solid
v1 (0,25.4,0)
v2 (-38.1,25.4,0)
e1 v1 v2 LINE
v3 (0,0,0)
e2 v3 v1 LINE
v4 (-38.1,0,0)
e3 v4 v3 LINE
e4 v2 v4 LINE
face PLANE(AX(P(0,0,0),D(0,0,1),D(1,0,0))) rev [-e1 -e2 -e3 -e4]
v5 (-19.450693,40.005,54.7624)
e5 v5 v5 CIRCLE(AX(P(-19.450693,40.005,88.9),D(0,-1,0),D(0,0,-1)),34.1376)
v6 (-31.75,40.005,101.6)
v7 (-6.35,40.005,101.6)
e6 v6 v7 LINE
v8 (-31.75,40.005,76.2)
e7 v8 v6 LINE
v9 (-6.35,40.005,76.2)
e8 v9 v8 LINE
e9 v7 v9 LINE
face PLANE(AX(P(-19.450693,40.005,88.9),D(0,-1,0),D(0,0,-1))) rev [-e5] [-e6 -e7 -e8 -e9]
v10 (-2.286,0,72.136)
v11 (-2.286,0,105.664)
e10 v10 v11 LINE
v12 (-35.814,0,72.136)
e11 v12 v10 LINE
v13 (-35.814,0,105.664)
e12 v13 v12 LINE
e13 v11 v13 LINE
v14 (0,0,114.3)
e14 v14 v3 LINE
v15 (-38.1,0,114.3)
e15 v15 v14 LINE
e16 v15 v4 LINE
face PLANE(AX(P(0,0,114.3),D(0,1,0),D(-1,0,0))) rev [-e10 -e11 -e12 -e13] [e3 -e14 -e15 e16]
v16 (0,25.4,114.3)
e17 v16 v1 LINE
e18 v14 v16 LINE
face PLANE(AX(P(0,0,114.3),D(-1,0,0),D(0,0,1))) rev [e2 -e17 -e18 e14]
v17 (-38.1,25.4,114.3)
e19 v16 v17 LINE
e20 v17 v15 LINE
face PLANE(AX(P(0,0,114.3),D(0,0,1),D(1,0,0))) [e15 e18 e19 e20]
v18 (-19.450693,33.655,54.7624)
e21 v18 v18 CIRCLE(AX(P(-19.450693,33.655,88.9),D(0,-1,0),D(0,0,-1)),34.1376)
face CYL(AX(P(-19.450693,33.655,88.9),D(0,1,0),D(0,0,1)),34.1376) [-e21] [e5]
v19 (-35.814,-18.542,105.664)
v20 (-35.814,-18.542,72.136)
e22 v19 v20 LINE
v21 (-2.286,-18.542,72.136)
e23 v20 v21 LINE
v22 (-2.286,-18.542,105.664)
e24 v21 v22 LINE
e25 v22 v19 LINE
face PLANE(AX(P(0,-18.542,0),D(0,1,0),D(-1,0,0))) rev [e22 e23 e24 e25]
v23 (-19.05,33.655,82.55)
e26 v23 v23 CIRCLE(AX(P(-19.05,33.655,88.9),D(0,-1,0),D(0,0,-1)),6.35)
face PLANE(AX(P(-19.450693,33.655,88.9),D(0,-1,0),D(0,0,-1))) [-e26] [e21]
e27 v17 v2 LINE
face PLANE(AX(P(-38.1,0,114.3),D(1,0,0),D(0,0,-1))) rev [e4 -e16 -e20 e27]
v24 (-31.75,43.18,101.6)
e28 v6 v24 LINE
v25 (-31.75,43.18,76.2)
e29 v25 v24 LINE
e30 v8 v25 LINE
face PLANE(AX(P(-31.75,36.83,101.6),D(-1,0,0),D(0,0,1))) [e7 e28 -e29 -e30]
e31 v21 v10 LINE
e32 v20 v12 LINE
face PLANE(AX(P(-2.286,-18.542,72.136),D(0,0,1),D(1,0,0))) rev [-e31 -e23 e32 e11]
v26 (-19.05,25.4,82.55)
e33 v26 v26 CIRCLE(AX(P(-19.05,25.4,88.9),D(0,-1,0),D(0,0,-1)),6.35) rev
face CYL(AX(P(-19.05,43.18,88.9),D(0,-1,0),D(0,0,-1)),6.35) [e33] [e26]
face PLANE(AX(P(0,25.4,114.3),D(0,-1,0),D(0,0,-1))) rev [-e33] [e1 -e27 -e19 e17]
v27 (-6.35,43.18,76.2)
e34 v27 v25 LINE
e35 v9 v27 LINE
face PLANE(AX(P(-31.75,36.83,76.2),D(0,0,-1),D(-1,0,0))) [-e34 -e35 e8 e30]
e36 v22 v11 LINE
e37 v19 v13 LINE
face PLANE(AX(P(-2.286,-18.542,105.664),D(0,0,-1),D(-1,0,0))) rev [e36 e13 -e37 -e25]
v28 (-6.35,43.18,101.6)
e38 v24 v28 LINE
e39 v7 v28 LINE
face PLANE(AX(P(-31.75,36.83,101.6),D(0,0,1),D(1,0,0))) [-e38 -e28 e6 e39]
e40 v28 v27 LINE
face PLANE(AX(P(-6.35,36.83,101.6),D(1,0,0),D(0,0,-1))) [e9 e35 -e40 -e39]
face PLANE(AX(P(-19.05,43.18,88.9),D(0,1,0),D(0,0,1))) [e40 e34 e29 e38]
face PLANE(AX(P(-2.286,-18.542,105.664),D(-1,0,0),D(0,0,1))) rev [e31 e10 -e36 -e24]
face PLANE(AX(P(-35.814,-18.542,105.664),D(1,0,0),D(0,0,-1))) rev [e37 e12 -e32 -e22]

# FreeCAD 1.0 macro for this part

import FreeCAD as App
import Part
import Sketcher
Q = App.Units.Quantity


def add_polygon(sketch, points):
    """Adds a closed chain of lines whose ends are joined by coincident constraints."""
    first, n = sketch.GeometryCount, len(points)
    for a, b in zip(points, points[1:] + points[:1]):
        sketch.addGeometry(Part.LineSegment(App.Vector(*a, 0), App.Vector(*b, 0)), False)
    for i in range(n):
        sketch.addConstraint(Sketcher.Constraint("Coincident", first + i, 2, first + (i + 1) % n, 1))

doc = App.newDocument("Part")
params = doc.addObject("Spreadsheet::Sheet", "Params")
for row, (alias, value) in enumerate([
    ("sketch1_height", "1 in"),
    ("sketch1_width", "1.5 in"),
    ("pad1_length", "4.5 in"),
    ("sketch2_width", "1.32 in"),
    ("pad2_length", "0.73 in"),
    ("sketch3_diameter", "0.5 in"),
    ("pad3_length", "0.7 in"),
    ("sketch4_width", "1 in"),
    ("pad4_length", "0.25 in"),
    ("sketch5_diameter", "2.688 in"),
    ("pad5_length", "0.25 in"),
], start=1):
    params.set(f"A{row}", alias)
    params.set(f"B{row}", "=" + value)
    params.setAlias(f"B{row}", alias)

body = doc.addObject("PartDesign::Body", "Body")

# Sketch on XY plane
sketch1 = body.newObject("Sketcher::SketchObject", "Sketch")
sketch1.AttachmentSupport = (doc.getObject("XY_Plane"), [""])
sketch1.MapMode = "FlatFace"
add_polygon(sketch1, [(-38, 25), (-38, 0), (0, 0), (0, 25)])  # lines 0-3
sketch1.addConstraint([
    Sketcher.Constraint("Vertical", 0),
    Sketcher.Constraint("Horizontal", 1),
    Sketcher.Constraint("Vertical", 2),
    Sketcher.Constraint("Horizontal", 3),
    Sketcher.Constraint("Coincident", 1, 2, -1, 1),
    Sketcher.Constraint("DistanceY", 0, 2, 0, 1, Q("1 in")),
    Sketcher.Constraint("DistanceX", 1, 1, 1, 2, Q("1.5 in")),
])
sketch1.setExpression("Constraints[9]", "Params.sketch1_height")
sketch1.setExpression("Constraints[10]", "Params.sketch1_width")
pad1 = body.newObject("PartDesign::Pad", "Pad")
pad1.Profile = sketch1
pad1.setExpression("Length", "Params.pad1_length")

# Sketch on XZ plane
sketch2 = body.newObject("Sketcher::SketchObject", "Sketch001")
sketch2.AttachmentSupport = (doc.getObject("XZ_Plane"), [""])
sketch2.MapMode = "FlatFace"
add_polygon(sketch2, [(-36, 106), (-36, 72), (-2, 72), (-2, 106)])  # lines 0-3
sketch2.addConstraint([
    Sketcher.Constraint("Vertical", 0),
    Sketcher.Constraint("Horizontal", 1),
    Sketcher.Constraint("Vertical", 2),
    Sketcher.Constraint("Horizontal", 3),
    Sketcher.Constraint("Equal", 3, 0),
    Sketcher.Constraint("DistanceX", 1, 1, 1, 2, Q("1.32 in")),
    Sketcher.Constraint("DistanceX", 0, 2, -1, 1, Q("1.41 in")),
    Sketcher.Constraint("DistanceY", -1, 1, 0, 2, Q("2.84 in")),
])
sketch2.setExpression("Constraints[9]", "Params.sketch2_width")
pad2 = body.newObject("PartDesign::Pad", "Pad001")
pad2.Profile = sketch2
pad2.setExpression("Length", "Params.pad2_length")

# Sketch on XZ plane
sketch3 = body.newObject("Sketcher::SketchObject", "Sketch002")
sketch3.AttachmentSupport = (doc.getObject("XZ_Plane"), [""])
sketch3.MapMode = "FlatFace"
sketch3.AttachmentOffset = App.Placement(App.Vector(0, 0, -1 * 25.4), App.Rotation())
sketch3.addGeometry(Part.Circle(App.Vector(-19, 89, 0), App.Vector(0, 0, 1), 6), False)
sketch3.addConstraint([
    Sketcher.Constraint("Diameter", 0, Q("0.5 in")),
    Sketcher.Constraint("DistanceY", -1, 1, 0, 3, Q("3.5 in")),
    Sketcher.Constraint("DistanceX", 0, 3, -1, 1, Q("0.75 in")),
])
sketch3.setExpression("Constraints[0]", "Params.sketch3_diameter")
pad3 = body.newObject("PartDesign::Pad", "Pad002")
pad3.Profile = sketch3
pad3.setExpression("Length", "Params.pad3_length")
pad3.Reversed = True

# Sketch on XZ plane
sketch4 = body.newObject("Sketcher::SketchObject", "Sketch003")
sketch4.AttachmentSupport = (doc.getObject("XZ_Plane"), [""])
sketch4.MapMode = "FlatFace"
sketch4.AttachmentOffset = App.Placement(App.Vector(0, 0, -1.7 * 25.4), App.Rotation())
add_polygon(sketch4, [(-32, 76), (-32, 102), (-6, 102), (-6, 76)])  # lines 0-3
sketch4.addConstraint([
    Sketcher.Constraint("Vertical", 0),
    Sketcher.Constraint("Horizontal", 1),
    Sketcher.Constraint("Vertical", 2),
    Sketcher.Constraint("Horizontal", 3),
    Sketcher.Constraint("Equal", 3, 0),
    Sketcher.Constraint("DistanceX", 1, 1, 1, 2, Q("1 in")),
    Sketcher.Constraint("DistanceY", -1, 1, 0, 2, Q("4 in")),
    Sketcher.Constraint("DistanceX", 0, 2, -1, 1, Q("1.25 in")),
])
sketch4.setExpression("Constraints[9]", "Params.sketch4_width")
pad4 = body.newObject("PartDesign::Pad", "Pad003")
pad4.Profile = sketch4
pad4.setExpression("Length", "Params.pad4_length")

# Sketch on XZ plane
sketch5 = body.newObject("Sketcher::SketchObject", "Sketch004")
sketch5.AttachmentSupport = (doc.getObject("XZ_Plane"), [""])
sketch5.MapMode = "FlatFace"
sketch5.AttachmentOffset = App.Placement(App.Vector(0, 0, -1.45 * 25.4), App.Rotation())
sketch5.addGeometry(Part.Circle(App.Vector(-19, 89, 0), App.Vector(0, 0, 1), 34), False)
sketch5.addConstraint([
    Sketcher.Constraint("Diameter", 0, Q("2.688 in")),
    Sketcher.Constraint("DistanceY", -1, 1, 0, 3, Q("3.5 in")),
    Sketcher.Constraint("DistanceX", 0, 3, -1, 1, Q("19.450693 mm")),
])
sketch5.setExpression("Constraints[0]", "Params.sketch5_diameter")
pad5 = body.newObject("PartDesign::Pad", "Pad004")
pad5.Profile = sketch5
pad5.setExpression("Length", "Params.pad5_length")
pad5.Midplane = True

doc.recompute()
